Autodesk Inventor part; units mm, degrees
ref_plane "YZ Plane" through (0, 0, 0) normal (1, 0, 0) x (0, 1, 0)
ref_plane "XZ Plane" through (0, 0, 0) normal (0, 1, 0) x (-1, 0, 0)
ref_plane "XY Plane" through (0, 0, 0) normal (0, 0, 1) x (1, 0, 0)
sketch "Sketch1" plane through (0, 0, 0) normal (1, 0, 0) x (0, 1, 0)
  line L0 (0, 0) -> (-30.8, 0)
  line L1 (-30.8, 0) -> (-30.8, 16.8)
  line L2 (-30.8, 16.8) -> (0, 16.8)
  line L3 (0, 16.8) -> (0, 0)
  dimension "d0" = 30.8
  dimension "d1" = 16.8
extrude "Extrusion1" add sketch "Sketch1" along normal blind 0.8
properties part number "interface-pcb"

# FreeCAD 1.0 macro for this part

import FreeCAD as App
import Part
import Sketcher

V = App.Vector
Q = App.Units.Quantity


def add_polygon(sketch, points):
    """Adds a closed chain of lines whose ends are joined by coincident constraints."""
    first, n = sketch.GeometryCount, len(points)
    for a, b in zip(points, points[1:] + points[:1]):
        sketch.addGeometry(Part.LineSegment(App.Vector(*a, 0), App.Vector(*b, 0)), False)
    for i in range(n):
        sketch.addConstraint(Sketcher.Constraint("Coincident", first + i, 2, first + (i + 1) % n, 1))

doc = App.newDocument("Part")
body = doc.addObject("PartDesign::Body", "Body")

# Sketch on YZ plane
sketch1 = body.newObject("Sketcher::SketchObject", "Sketch")
sketch1.AttachmentSupport = (doc.getObject("YZ_Plane"), [""])
sketch1.MapMode = "FlatFace"
add_polygon(sketch1, [(-30.8, 0), (0, 0), (0, 16.8), (-30.8, 16.8)])  # lines 0-3
sketch1.addConstraint(Sketcher.Constraint("Horizontal", 0))
sketch1.addConstraint(Sketcher.Constraint("Vertical", 1))
sketch1.addConstraint(Sketcher.Constraint("Horizontal", 2))
sketch1.addConstraint(Sketcher.Constraint("Vertical", 3))
sketch1.addConstraint(Sketcher.Constraint("Coincident", 0, 2, -1, 1))
sketch1.addConstraint(Sketcher.Constraint("DistanceX", 0, 1, 0, 2, Q("30.8 mm")))
sketch1.addConstraint(Sketcher.Constraint("DistanceY", 1, 1, 1, 2, Q("16.8 mm")))
pad1 = body.newObject("PartDesign::Pad", "Pad")
pad1.Profile = sketch1
pad1.Length = 0.8

doc.recompute()
